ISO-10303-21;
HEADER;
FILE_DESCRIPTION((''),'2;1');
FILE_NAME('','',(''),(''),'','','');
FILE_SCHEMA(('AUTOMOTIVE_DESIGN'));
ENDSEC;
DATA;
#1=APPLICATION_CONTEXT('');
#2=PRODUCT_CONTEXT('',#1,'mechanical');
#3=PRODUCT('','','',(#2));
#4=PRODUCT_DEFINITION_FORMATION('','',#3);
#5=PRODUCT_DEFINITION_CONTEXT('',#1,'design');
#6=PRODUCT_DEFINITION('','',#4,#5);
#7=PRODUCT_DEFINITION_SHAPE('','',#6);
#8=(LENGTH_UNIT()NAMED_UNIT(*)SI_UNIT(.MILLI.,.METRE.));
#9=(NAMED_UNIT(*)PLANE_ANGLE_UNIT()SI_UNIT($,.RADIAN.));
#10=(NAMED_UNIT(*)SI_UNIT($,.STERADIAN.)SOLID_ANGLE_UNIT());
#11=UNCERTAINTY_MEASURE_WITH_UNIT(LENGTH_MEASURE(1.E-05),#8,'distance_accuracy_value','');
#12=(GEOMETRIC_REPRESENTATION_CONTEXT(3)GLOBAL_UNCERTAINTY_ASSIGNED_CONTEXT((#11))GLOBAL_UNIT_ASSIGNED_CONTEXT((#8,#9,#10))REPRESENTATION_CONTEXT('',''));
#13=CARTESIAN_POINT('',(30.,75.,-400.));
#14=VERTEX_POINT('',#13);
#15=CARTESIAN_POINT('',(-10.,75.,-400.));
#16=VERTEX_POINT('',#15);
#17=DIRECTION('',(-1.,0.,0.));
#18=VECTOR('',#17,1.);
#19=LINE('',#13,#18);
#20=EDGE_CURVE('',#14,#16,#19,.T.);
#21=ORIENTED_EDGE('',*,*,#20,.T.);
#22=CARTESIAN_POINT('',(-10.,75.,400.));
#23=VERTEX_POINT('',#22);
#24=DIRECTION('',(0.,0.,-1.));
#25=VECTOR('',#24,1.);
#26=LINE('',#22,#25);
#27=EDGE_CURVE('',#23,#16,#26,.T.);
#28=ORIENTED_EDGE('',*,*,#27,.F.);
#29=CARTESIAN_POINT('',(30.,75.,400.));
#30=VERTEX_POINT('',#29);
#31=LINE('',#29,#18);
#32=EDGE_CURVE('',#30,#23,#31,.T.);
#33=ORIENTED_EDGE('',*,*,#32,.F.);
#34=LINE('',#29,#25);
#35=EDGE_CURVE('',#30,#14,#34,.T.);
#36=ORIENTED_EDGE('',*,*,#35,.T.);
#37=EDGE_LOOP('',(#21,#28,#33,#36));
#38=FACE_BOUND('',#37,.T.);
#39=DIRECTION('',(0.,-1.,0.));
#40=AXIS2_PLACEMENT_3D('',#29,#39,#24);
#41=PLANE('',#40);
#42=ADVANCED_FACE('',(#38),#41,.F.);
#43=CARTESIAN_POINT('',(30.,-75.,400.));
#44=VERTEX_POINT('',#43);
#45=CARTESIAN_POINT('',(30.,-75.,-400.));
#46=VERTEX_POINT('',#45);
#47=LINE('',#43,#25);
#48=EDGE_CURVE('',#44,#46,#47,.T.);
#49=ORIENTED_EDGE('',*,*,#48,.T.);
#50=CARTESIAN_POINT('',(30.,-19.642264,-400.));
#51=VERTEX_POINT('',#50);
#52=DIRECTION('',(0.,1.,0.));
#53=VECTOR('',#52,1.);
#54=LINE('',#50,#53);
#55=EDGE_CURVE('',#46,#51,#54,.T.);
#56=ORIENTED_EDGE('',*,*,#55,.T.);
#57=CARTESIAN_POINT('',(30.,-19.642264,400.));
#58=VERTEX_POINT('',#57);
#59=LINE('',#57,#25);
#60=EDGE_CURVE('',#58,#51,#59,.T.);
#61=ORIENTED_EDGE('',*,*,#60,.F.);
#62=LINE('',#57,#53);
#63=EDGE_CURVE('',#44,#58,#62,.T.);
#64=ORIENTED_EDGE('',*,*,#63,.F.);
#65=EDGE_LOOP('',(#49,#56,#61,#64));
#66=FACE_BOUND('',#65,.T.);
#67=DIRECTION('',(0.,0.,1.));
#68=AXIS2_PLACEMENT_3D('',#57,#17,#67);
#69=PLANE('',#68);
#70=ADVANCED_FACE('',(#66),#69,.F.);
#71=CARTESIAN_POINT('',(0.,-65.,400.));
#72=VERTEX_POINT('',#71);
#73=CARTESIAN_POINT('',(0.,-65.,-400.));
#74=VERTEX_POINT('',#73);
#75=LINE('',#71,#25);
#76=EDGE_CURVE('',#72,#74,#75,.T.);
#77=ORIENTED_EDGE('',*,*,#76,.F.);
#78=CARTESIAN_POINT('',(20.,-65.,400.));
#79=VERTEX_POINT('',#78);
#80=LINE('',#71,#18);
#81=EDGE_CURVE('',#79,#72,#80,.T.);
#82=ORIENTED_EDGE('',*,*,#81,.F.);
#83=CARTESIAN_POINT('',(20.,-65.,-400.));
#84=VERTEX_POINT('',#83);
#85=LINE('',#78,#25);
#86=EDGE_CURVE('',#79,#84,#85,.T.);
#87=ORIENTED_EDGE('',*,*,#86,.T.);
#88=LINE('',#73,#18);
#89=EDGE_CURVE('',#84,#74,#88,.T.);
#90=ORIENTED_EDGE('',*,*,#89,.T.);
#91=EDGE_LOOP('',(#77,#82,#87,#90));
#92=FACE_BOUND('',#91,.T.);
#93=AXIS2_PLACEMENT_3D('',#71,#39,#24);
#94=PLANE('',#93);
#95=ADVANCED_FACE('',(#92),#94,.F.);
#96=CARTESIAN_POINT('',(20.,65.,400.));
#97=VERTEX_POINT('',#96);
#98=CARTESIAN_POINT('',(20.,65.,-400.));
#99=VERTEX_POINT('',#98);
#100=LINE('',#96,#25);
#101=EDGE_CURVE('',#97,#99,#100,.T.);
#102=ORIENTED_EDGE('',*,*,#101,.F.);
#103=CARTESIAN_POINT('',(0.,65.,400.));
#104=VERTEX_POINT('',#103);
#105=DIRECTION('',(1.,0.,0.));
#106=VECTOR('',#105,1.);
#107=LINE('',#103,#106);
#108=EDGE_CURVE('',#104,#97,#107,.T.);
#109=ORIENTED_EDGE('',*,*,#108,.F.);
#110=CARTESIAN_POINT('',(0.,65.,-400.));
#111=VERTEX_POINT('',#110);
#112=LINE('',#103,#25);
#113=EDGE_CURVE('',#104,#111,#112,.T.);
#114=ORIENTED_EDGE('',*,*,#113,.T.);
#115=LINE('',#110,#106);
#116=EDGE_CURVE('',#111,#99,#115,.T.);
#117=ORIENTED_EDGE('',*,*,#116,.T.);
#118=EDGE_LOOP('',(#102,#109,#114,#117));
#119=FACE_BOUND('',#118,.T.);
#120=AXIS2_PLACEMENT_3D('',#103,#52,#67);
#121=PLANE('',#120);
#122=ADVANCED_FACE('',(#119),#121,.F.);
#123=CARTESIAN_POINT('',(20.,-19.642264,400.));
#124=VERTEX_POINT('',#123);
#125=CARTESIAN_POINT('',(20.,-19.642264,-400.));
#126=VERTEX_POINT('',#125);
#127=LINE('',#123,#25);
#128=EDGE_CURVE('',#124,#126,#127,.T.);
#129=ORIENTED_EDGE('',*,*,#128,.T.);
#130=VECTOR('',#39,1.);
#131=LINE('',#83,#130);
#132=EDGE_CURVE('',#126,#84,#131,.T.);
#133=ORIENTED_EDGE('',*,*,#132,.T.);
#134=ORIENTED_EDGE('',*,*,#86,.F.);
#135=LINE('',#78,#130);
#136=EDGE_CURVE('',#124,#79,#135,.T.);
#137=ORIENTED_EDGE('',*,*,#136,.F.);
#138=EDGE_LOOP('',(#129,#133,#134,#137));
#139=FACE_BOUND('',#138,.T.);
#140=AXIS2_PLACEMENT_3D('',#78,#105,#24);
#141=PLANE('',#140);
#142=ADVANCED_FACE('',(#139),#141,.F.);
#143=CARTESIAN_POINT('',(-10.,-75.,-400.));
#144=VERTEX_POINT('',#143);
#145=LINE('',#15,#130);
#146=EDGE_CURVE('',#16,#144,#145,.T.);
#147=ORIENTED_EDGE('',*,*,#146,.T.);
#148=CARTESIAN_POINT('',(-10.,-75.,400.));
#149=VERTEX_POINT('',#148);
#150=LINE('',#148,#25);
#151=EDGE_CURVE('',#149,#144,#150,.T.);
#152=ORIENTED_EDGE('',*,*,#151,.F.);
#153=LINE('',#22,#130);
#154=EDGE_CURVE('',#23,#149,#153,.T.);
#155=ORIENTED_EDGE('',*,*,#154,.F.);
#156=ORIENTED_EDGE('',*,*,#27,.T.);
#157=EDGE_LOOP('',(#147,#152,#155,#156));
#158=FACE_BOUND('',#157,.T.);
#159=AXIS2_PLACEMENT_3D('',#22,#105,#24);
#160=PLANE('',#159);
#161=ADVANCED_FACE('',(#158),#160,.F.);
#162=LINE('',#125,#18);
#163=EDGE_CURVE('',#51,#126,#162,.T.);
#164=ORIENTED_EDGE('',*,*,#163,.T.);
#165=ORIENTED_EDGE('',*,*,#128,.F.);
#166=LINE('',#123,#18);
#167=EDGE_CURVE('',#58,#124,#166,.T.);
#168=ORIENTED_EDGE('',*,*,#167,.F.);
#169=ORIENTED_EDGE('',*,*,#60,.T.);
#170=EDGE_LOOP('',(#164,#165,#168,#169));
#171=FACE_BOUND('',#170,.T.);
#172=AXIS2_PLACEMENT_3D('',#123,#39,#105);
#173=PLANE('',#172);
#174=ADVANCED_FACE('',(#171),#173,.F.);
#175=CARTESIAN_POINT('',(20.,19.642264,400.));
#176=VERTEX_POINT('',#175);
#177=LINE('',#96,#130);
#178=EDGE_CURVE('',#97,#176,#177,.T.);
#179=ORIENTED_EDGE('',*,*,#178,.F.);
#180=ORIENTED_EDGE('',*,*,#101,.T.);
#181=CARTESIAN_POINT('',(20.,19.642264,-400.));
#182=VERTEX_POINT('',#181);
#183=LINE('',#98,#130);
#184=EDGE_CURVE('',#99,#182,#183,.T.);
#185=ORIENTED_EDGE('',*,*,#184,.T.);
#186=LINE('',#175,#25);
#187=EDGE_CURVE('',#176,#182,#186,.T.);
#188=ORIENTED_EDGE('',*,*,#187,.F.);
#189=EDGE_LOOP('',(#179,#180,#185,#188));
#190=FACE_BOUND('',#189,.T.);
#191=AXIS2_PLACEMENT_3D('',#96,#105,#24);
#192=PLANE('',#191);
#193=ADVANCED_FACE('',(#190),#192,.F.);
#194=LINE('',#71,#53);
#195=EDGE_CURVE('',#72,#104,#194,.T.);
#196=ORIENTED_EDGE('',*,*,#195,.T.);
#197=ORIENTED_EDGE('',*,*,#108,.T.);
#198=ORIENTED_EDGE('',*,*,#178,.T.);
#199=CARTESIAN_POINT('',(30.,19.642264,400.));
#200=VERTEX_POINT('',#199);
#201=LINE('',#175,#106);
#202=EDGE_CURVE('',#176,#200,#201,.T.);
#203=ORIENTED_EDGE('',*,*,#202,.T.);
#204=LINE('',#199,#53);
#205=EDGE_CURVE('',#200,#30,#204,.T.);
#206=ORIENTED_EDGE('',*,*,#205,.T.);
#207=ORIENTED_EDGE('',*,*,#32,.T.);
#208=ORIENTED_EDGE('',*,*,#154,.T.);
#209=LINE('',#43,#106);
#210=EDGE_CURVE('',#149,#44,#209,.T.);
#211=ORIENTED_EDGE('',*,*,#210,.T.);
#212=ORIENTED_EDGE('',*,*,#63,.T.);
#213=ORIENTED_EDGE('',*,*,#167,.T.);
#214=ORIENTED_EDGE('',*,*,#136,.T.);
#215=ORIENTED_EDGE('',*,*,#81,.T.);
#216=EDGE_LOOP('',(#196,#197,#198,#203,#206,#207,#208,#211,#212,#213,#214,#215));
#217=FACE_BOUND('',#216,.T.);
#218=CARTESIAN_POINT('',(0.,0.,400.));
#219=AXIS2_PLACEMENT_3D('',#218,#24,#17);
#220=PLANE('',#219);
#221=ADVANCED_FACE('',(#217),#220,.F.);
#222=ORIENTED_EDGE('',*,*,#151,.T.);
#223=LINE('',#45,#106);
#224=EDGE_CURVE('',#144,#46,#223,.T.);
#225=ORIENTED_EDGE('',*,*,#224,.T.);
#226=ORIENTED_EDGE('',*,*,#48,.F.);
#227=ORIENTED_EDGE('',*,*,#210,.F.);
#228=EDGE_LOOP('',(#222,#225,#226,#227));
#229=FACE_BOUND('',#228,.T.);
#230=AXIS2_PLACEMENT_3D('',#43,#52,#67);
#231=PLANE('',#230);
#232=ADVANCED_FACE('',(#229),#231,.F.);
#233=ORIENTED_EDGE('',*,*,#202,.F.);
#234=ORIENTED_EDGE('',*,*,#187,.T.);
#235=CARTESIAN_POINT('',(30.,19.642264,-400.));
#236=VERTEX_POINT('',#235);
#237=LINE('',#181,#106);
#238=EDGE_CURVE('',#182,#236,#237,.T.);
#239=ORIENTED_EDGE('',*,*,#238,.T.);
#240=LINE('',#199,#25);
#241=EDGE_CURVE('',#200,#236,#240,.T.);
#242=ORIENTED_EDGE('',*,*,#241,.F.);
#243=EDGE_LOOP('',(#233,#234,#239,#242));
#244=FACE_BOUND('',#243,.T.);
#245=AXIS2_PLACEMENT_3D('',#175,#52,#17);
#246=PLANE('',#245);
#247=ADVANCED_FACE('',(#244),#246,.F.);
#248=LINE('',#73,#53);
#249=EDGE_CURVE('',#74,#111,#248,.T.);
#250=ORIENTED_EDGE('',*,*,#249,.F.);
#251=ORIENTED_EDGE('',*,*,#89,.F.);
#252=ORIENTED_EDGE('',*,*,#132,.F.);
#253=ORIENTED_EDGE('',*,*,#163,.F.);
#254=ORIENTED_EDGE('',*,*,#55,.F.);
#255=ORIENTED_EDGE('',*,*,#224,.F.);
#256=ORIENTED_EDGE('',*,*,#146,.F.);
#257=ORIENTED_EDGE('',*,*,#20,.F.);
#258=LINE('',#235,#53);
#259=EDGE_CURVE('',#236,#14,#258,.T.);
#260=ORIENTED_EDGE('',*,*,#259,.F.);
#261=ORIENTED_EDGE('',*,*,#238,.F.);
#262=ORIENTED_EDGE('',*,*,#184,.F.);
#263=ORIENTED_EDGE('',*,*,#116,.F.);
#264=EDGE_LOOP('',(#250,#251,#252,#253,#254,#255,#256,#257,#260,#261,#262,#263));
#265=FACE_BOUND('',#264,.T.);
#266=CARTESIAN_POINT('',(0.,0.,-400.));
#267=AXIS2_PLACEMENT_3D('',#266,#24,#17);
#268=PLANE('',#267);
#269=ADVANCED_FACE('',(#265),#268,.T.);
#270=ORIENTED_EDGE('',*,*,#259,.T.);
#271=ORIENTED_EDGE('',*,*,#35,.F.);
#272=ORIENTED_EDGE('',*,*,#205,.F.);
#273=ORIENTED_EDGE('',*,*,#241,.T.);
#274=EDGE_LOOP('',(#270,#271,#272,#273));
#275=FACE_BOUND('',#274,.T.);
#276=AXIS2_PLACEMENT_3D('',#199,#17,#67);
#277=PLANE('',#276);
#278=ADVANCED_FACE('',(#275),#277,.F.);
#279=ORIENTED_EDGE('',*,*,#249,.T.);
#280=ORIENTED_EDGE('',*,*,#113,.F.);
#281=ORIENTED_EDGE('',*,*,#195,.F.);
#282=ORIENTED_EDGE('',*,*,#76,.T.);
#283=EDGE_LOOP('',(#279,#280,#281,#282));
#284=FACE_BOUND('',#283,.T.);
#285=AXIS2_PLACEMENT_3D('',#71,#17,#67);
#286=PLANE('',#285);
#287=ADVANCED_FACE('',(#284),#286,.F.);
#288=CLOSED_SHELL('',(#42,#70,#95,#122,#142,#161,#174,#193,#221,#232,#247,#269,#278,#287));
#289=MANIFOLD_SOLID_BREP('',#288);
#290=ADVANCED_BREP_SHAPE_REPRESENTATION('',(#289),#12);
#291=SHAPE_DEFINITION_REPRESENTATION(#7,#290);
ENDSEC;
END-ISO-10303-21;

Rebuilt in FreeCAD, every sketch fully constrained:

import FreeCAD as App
import Part
import Sketcher

doc = App.newDocument("Part")
params = doc.addObject("Spreadsheet::Sheet", "Params")
for row, (alias, value) in enumerate([
    ("sketch1_width", "20 mm"),
    ("sketch1_width2", "10 mm"),
    ("sketch1_width3", "40 mm"),
    ("sketch1_height", "130 mm"),
    ("sketch1_height2", "150 mm"),
    ("pad1_length", "800 mm"),
], start=1):
    params.set(f"A{row}", alias)
    params.set(f"B{row}", "=" + value)
    params.setAlias(f"B{row}", alias)

body = doc.addObject("PartDesign::Body", "Body")

sketch1 = body.newObject("Sketcher::SketchObject", "Sketch")
sketch1.AttachmentSupport = (doc.getObject("XY_Plane"), [""])
sketch1.MapMode = "FlatFace"
sketch1.addGeometry([
    Part.LineSegment(App.Vector(0, -65, 0), App.Vector(0, 65, 0)),
    Part.LineSegment(App.Vector(0, 65, 0), App.Vector(20, 65, 0)),
    Part.LineSegment(App.Vector(20, 65, 0), App.Vector(20, 20, 0)),
    Part.LineSegment(App.Vector(20, 20, 0), App.Vector(30, 20, 0)),
    Part.LineSegment(App.Vector(30, 20, 0), App.Vector(30, 75, 0)),
    Part.LineSegment(App.Vector(30, 75, 0), App.Vector(-10, 75, 0)),
    Part.LineSegment(App.Vector(-10, 75, 0), App.Vector(-10, -75, 0)),
    Part.LineSegment(App.Vector(-10, -75, 0), App.Vector(30, -75, 0)),
    Part.LineSegment(App.Vector(30, -75, 0), App.Vector(30, -20, 0)),
    Part.LineSegment(App.Vector(30, -20, 0), App.Vector(20, -20, 0)),
    Part.LineSegment(App.Vector(20, -20, 0), App.Vector(20, -65, 0)),
    Part.LineSegment(App.Vector(20, -65, 0), App.Vector(0, -65, 0)),
], False)
sketch1.addConstraint([
    Sketcher.Constraint("Coincident", 0, 2, 1, 1),
    Sketcher.Constraint("Coincident", 1, 2, 2, 1),
    Sketcher.Constraint("Coincident", 2, 2, 3, 1),
    Sketcher.Constraint("Coincident", 3, 2, 4, 1),
    Sketcher.Constraint("Coincident", 4, 2, 5, 1),
    Sketcher.Constraint("Coincident", 5, 2, 6, 1),
    Sketcher.Constraint("Coincident", 6, 2, 7, 1),
    Sketcher.Constraint("Coincident", 7, 2, 8, 1),
    Sketcher.Constraint("Coincident", 8, 2, 9, 1),
    Sketcher.Constraint("Coincident", 9, 2, 10, 1),
    Sketcher.Constraint("Coincident", 10, 2, 11, 1),
    Sketcher.Constraint("Coincident", 11, 2, 0, 1),
    Sketcher.Constraint("Vertical", 0),
    Sketcher.Constraint("Horizontal", 1),
    Sketcher.Constraint("Vertical", 2),
    Sketcher.Constraint("Horizontal", 3),
    Sketcher.Constraint("Vertical", 4),
    Sketcher.Constraint("Horizontal", 5),
    Sketcher.Constraint("Vertical", 6),
    Sketcher.Constraint("Horizontal", 7),
    Sketcher.Constraint("Vertical", 8),
    Sketcher.Constraint("Horizontal", 9),
    Sketcher.Constraint("Vertical", 10),
    Sketcher.Constraint("Horizontal", 11),
    Sketcher.Constraint("Symmetric", 0, 2, 11, 2, -1, 1),
    Sketcher.Constraint("Symmetric", 4, 2, 7, 2, -1),
    Sketcher.Constraint("Symmetric", 2, 2, 9, 2, -1),
    Sketcher.Constraint("DistanceX", 1, 1, 1, 2, 20.0),
    Sketcher.Constraint("DistanceX", 3, 1, 3, 2, 10.0),
    Sketcher.Constraint("DistanceX", 5, 2, 5, 1, 40.0),
    Sketcher.Constraint("DistanceY", 0, 1, 0, 2, 130.0),
    Sketcher.Constraint("DistanceY", 6, 2, 6, 1, 150.0),
    Sketcher.Constraint("DistanceY", 2, 2, 2, 1, 45.357736),
])
sketch1.setExpression("Constraints[27]", "Params.sketch1_width")
sketch1.setExpression("Constraints[28]", "Params.sketch1_width2")
sketch1.setExpression("Constraints[29]", "Params.sketch1_width3")
sketch1.setExpression("Constraints[30]", "Params.sketch1_height")
sketch1.setExpression("Constraints[31]", "Params.sketch1_height2")
pad1 = body.newObject("PartDesign::Pad", "Pad")
pad1.Profile = sketch1
pad1.setExpression("Length", "Params.pad1_length")
pad1.Midplane = True

doc.recompute()
